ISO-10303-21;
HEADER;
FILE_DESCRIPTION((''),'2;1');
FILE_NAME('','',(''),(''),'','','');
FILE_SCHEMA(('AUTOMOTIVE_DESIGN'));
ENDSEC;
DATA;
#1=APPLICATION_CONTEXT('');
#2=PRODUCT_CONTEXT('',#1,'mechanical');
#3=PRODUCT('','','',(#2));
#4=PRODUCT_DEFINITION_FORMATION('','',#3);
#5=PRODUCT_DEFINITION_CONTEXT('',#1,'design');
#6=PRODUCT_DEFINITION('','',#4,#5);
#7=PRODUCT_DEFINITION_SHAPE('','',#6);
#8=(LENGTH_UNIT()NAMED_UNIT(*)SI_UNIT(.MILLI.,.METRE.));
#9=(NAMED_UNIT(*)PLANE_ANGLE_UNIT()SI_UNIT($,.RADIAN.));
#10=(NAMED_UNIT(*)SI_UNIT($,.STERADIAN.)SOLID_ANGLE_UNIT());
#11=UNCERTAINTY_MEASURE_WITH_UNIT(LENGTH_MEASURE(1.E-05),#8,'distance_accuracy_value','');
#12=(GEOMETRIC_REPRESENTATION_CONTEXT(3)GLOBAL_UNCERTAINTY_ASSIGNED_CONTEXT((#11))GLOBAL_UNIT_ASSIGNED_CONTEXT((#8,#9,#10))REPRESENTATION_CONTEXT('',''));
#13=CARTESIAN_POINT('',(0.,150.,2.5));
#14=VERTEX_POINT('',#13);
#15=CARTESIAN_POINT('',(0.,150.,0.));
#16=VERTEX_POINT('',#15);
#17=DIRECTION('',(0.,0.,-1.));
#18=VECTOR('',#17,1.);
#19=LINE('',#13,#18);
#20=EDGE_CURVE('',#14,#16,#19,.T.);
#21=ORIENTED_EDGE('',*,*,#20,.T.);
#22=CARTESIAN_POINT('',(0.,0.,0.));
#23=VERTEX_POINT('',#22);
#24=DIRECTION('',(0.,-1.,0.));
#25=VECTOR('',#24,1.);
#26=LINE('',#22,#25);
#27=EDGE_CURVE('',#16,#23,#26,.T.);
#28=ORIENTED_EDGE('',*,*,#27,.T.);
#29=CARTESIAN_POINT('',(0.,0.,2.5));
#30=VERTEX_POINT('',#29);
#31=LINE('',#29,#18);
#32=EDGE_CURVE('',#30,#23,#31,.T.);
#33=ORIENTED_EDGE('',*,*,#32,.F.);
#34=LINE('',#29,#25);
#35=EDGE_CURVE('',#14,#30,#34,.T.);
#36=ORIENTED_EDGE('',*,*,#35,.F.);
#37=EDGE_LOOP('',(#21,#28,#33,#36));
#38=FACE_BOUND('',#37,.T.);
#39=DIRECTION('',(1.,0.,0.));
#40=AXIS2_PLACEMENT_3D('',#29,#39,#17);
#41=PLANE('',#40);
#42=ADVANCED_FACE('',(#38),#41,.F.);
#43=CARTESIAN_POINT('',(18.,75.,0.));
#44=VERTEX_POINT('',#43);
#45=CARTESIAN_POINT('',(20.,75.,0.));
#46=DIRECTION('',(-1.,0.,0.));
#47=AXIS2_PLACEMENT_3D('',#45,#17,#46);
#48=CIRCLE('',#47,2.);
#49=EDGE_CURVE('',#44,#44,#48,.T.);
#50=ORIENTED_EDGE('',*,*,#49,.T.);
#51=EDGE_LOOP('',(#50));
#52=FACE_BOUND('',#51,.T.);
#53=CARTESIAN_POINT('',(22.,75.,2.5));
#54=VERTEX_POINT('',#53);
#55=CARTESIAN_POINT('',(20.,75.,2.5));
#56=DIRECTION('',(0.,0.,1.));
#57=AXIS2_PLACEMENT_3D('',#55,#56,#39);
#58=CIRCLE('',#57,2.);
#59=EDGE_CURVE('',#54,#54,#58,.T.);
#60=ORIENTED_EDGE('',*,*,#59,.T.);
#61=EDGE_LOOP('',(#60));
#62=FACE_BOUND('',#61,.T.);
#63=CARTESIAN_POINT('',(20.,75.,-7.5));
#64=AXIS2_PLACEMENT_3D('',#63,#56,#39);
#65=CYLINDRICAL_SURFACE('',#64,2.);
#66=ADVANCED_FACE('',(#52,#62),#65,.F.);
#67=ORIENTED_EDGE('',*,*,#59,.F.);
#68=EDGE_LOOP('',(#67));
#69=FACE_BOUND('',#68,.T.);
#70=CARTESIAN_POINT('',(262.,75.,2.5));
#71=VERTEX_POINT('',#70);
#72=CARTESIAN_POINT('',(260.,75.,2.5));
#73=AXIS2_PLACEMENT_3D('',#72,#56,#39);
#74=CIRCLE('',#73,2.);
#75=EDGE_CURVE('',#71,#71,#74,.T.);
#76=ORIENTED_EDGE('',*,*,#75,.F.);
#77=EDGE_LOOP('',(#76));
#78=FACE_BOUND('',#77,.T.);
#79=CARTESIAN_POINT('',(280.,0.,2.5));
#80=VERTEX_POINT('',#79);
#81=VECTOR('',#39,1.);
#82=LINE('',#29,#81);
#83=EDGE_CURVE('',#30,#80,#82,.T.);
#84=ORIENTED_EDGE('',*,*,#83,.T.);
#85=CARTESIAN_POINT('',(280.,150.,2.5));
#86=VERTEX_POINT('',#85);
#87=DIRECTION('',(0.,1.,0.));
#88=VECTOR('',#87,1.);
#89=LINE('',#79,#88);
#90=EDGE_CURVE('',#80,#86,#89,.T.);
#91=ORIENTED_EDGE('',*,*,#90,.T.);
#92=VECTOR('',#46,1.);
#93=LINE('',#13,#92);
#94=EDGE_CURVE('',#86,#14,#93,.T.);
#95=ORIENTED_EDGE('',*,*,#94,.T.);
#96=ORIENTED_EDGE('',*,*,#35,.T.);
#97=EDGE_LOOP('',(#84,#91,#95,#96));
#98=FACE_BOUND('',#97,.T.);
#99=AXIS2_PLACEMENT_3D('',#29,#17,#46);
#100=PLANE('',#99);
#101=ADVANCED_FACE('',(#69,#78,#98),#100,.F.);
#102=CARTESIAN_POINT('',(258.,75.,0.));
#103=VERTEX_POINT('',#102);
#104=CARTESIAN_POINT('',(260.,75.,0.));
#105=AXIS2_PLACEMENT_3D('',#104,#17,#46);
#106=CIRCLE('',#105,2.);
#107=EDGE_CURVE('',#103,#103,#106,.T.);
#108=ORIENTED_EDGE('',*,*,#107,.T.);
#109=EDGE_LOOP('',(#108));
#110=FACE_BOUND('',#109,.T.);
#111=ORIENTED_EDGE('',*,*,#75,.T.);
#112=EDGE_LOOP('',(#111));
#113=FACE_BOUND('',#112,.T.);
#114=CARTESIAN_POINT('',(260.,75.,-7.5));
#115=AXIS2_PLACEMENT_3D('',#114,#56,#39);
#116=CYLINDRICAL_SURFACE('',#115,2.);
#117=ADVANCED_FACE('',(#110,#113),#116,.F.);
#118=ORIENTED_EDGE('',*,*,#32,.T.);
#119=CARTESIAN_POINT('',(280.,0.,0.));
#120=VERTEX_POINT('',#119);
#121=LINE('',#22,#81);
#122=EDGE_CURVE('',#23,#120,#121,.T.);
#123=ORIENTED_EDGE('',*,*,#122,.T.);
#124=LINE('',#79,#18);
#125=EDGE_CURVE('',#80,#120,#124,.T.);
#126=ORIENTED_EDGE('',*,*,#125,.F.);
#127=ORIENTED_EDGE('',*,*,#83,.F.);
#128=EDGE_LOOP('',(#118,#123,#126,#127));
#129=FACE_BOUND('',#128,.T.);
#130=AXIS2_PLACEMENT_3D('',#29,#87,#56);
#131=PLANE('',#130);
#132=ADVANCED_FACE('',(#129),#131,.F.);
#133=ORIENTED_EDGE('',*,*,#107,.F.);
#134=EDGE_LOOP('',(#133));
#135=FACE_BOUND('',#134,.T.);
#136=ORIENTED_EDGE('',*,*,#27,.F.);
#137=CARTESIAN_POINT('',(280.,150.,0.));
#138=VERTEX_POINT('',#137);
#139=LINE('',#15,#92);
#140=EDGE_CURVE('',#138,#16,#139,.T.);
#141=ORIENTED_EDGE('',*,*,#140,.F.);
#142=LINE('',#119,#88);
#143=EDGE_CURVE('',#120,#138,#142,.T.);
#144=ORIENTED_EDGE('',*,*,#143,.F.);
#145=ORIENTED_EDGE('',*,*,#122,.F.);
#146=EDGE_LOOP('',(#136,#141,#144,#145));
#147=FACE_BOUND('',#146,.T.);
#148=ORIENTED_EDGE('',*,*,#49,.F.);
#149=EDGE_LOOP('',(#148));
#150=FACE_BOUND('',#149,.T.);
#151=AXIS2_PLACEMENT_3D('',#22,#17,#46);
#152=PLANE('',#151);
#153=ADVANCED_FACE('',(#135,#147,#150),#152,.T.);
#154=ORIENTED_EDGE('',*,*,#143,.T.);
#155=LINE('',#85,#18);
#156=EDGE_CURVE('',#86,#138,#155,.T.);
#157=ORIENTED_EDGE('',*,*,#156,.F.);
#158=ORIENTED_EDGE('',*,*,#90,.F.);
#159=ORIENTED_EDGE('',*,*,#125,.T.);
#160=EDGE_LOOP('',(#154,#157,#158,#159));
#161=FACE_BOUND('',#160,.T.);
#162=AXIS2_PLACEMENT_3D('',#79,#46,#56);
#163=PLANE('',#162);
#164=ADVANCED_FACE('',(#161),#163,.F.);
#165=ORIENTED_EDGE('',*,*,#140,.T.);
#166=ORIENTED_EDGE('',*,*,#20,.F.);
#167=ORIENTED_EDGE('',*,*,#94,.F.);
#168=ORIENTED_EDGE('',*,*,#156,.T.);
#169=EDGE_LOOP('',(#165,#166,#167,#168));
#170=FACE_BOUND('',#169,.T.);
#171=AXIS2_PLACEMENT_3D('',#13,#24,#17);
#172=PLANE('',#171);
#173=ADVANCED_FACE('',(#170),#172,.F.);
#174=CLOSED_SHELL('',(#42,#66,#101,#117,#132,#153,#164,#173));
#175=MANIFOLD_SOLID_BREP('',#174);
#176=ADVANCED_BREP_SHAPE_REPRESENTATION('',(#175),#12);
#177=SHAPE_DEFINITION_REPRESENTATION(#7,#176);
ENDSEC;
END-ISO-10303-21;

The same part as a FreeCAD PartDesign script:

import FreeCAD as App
import Part
import Sketcher

V = App.Vector
Q = App.Units.Quantity


def add_polygon(sketch, points):
    """Adds a closed chain of lines whose ends are joined by coincident constraints."""
    first, n = sketch.GeometryCount, len(points)
    for a, b in zip(points, points[1:] + points[:1]):
        sketch.addGeometry(Part.LineSegment(App.Vector(*a, 0), App.Vector(*b, 0)), False)
    for i in range(n):
        sketch.addConstraint(Sketcher.Constraint("Coincident", first + i, 2, first + (i + 1) % n, 1))

doc = App.newDocument("Part")
body = doc.addObject("PartDesign::Body", "Body")

sketch1 = body.newObject("Sketcher::SketchObject", "Sketch")
sketch1.AttachmentSupport = (doc.getObject("XY_Plane"), [""])
sketch1.MapMode = "FlatFace"
add_polygon(sketch1, [(0, 150), (0, 0), (280, 0), (280, 150)])
sketch1.addConstraint([
    Sketcher.Constraint("Vertical", 0),
    Sketcher.Constraint("Horizontal", 1),
    Sketcher.Constraint("Vertical", 2),
    Sketcher.Constraint("Horizontal", 3),
    Sketcher.Constraint("Coincident", 0, 2, -1, 1),
    Sketcher.Constraint("DistanceX", 1, 1, 1, 2, Q("280 mm")),
    Sketcher.Constraint("DistanceY", 0, 2, 0, 1, Q("150 mm")),
])
pad1 = body.newObject("PartDesign::Pad", "Pad")
pad1.Profile = sketch1
pad1.Length = 2.5

sketch2 = body.newObject("Sketcher::SketchObject", "Sketch001")
sketch2.AttachmentSupport = (doc.getObject("XY_Plane"), [""])
sketch2.MapMode = "FlatFace"
sketch2.AttachmentOffset = App.Placement(V(0, 0, 2.5), App.Rotation())
sketch2.addGeometry([
    Part.Circle(V(260, 75, 0), V(0, 0, 1), 2),
    Part.Circle(V(20, 75, 0), V(0, 0, 1), 2),
], False)
sketch2.addConstraint([
    Sketcher.Constraint("Equal", 0, 1),
    Sketcher.Constraint("Horizontal", 0, 3, 1, 3),
    Sketcher.Constraint("Diameter", 0, Q("4 mm")),
    Sketcher.Constraint("DistanceX", -1, 1, 0, 3, Q("260 mm")),
    Sketcher.Constraint("DistanceY", -1, 1, 0, 3, Q("75 mm")),
    Sketcher.Constraint("DistanceX", -1, 1, 1, 3, Q("20 mm")),
])
pocket1 = body.newObject("PartDesign::Pocket", "Pocket")
pocket1.Profile = sketch2
pocket1.Length = 10

doc.recompute()
